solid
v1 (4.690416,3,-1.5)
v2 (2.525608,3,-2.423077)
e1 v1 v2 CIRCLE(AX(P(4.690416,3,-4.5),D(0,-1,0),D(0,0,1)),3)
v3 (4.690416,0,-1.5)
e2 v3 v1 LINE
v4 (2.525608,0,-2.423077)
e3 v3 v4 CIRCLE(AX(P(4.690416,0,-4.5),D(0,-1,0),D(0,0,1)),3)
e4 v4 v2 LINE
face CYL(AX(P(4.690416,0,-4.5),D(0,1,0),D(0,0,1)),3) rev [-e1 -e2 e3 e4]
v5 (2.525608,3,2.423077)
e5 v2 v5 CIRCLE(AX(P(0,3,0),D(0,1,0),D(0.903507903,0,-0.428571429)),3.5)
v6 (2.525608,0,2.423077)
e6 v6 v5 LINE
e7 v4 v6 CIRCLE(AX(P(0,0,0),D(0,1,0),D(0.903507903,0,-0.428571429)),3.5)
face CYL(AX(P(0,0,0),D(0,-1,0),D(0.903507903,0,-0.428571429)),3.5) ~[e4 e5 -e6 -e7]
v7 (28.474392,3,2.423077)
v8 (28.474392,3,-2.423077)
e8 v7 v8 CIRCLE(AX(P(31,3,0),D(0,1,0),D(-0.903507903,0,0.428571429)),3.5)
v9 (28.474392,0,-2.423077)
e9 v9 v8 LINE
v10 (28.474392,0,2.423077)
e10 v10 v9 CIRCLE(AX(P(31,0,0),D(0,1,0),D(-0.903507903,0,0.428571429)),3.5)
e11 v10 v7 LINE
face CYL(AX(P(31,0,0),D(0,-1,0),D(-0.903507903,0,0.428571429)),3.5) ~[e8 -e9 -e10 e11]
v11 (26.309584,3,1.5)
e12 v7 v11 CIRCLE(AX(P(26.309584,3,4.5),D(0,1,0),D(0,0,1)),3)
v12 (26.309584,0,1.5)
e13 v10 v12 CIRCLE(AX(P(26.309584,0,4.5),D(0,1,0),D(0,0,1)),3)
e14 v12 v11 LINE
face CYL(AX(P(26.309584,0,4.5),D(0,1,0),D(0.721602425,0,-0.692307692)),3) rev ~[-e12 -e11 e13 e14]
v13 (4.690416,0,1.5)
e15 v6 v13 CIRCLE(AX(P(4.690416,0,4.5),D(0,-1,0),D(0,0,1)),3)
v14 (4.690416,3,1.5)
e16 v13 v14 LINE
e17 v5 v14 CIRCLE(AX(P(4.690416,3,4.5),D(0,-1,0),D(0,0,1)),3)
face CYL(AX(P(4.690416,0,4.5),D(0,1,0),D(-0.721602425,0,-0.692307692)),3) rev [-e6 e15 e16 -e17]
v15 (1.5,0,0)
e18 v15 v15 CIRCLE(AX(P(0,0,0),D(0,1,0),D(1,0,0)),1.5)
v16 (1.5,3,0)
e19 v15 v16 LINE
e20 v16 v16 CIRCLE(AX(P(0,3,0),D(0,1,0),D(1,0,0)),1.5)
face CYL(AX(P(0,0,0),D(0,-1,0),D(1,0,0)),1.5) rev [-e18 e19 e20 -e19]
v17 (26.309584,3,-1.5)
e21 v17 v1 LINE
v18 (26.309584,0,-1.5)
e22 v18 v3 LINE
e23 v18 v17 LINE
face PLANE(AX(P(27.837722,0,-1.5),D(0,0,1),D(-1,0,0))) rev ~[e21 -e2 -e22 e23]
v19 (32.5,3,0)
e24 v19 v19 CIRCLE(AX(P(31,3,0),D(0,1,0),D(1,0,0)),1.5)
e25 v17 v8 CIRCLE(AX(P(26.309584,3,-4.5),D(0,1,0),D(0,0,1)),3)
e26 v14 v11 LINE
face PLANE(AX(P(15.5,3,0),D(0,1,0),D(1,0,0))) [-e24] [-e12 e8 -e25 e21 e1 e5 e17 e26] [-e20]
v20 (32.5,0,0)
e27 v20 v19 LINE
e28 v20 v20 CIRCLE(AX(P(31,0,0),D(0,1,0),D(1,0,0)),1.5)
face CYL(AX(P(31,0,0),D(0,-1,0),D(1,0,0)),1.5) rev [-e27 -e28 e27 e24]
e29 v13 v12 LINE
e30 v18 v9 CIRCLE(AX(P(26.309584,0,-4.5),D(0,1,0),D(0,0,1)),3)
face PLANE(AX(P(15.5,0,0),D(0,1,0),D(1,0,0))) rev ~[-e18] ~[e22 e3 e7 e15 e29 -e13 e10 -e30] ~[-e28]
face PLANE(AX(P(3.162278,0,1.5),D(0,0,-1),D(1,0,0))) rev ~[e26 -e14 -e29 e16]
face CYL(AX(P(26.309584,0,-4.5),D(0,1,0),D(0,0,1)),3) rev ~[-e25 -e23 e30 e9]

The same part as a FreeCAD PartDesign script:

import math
import FreeCAD as App
import Part
import Sketcher
from FreeCAD import Vector
Q = App.Units.Quantity


def edges_at(feature, points):
    """Names of the edges that pass closest to the given points."""
    edges = feature.Shape.Edges
    near = lambda p: min(range(len(edges)), key=lambda i: edges[i].distToShape(Part.Vertex(*p))[0])
    return sorted({f"Edge{near(p) + 1}" for p in points})

doc = App.newDocument("Part")
body = doc.addObject("PartDesign::Body", "Body")

# Sketch on XZ plane
sketch1 = doc.addObject("Sketcher::SketchObject", "Sketch")
body.addObject(sketch1)
sketch1.AttachmentSupport = (doc.XZ_Plane, [""])
sketch1.MapMode = "FlatFace"
sketch1.addGeometry([
    Part.LineSegment(Vector(27.8, -1.5, 0), Vector(3.2, -1.5, 0)),  # 0
    Part.ArcOfCircle(Part.Circle(Vector(0, 0, 0), Vector(0, 0, 1), 3.5), math.radians(25), math.radians(335)),  # 1
    Part.LineSegment(Vector(3.2, 1.5, 0), Vector(27.8, 1.5, 0)),  # 2
    Part.ArcOfCircle(Part.Circle(Vector(31, 0, 0), Vector(0, 0, 1), 3.5), math.radians(-155), math.radians(155)),  # 3
    Part.Circle(Vector(0, 0, 0), Vector(0, 0, 1), 1.5),  # 4
    Part.Circle(Vector(31, 0, 0), Vector(0, 0, 1), 1.5),  # 5
], False)
sketch1.addConstraint([
    Sketcher.Constraint("Coincident", 0, 2, 1, 2),
    Sketcher.Constraint("Coincident", 1, 1, 2, 1),
    Sketcher.Constraint("Coincident", 2, 2, 3, 2),
    Sketcher.Constraint("Coincident", 3, 1, 0, 1),
    Sketcher.Constraint("Horizontal", 0),
    Sketcher.Constraint("Horizontal", 2),
    Sketcher.Constraint("Coincident", 1, 3, -1, 1),
    Sketcher.Constraint("Coincident", 4, 3, -1, 1),
    Sketcher.Constraint("Coincident", 5, 3, 3, 3),
    Sketcher.Constraint("Equal", 1, 3),
    Sketcher.Constraint("Equal", 4, 5),
    Sketcher.Constraint("Symmetric", 2, 2, 3, 1, -1),
    Sketcher.Constraint("Diameter", 4, Q("3 mm")),
    Sketcher.Constraint("Radius", 1, Q("3.5 mm")),
    Sketcher.Constraint("DistanceX", -1, 1, 3, 3, Q("31 mm")),
    Sketcher.Constraint("DistanceY", 0, 2, 1, 1, Q("3 mm")),
])
pad1 = doc.addObject("PartDesign::Pad", "Pad")
body.addObject(pad1)
pad1.Profile = sketch1
pad1.Length = 3
pad1.Reversed = True
doc.recompute()

fillet = doc.addObject("PartDesign::Fillet", "Fillet")
body.addObject(fillet)
fillet.Base = (pad1, edges_at(pad1, [
    (27.838, 1.5, 1.5),
    (3.162, 1.5, 1.5),
    (3.162, 1.5, -1.5),
    (27.838, 1.5, -1.5),
]))
fillet.Radius = 3

doc.recompute()
